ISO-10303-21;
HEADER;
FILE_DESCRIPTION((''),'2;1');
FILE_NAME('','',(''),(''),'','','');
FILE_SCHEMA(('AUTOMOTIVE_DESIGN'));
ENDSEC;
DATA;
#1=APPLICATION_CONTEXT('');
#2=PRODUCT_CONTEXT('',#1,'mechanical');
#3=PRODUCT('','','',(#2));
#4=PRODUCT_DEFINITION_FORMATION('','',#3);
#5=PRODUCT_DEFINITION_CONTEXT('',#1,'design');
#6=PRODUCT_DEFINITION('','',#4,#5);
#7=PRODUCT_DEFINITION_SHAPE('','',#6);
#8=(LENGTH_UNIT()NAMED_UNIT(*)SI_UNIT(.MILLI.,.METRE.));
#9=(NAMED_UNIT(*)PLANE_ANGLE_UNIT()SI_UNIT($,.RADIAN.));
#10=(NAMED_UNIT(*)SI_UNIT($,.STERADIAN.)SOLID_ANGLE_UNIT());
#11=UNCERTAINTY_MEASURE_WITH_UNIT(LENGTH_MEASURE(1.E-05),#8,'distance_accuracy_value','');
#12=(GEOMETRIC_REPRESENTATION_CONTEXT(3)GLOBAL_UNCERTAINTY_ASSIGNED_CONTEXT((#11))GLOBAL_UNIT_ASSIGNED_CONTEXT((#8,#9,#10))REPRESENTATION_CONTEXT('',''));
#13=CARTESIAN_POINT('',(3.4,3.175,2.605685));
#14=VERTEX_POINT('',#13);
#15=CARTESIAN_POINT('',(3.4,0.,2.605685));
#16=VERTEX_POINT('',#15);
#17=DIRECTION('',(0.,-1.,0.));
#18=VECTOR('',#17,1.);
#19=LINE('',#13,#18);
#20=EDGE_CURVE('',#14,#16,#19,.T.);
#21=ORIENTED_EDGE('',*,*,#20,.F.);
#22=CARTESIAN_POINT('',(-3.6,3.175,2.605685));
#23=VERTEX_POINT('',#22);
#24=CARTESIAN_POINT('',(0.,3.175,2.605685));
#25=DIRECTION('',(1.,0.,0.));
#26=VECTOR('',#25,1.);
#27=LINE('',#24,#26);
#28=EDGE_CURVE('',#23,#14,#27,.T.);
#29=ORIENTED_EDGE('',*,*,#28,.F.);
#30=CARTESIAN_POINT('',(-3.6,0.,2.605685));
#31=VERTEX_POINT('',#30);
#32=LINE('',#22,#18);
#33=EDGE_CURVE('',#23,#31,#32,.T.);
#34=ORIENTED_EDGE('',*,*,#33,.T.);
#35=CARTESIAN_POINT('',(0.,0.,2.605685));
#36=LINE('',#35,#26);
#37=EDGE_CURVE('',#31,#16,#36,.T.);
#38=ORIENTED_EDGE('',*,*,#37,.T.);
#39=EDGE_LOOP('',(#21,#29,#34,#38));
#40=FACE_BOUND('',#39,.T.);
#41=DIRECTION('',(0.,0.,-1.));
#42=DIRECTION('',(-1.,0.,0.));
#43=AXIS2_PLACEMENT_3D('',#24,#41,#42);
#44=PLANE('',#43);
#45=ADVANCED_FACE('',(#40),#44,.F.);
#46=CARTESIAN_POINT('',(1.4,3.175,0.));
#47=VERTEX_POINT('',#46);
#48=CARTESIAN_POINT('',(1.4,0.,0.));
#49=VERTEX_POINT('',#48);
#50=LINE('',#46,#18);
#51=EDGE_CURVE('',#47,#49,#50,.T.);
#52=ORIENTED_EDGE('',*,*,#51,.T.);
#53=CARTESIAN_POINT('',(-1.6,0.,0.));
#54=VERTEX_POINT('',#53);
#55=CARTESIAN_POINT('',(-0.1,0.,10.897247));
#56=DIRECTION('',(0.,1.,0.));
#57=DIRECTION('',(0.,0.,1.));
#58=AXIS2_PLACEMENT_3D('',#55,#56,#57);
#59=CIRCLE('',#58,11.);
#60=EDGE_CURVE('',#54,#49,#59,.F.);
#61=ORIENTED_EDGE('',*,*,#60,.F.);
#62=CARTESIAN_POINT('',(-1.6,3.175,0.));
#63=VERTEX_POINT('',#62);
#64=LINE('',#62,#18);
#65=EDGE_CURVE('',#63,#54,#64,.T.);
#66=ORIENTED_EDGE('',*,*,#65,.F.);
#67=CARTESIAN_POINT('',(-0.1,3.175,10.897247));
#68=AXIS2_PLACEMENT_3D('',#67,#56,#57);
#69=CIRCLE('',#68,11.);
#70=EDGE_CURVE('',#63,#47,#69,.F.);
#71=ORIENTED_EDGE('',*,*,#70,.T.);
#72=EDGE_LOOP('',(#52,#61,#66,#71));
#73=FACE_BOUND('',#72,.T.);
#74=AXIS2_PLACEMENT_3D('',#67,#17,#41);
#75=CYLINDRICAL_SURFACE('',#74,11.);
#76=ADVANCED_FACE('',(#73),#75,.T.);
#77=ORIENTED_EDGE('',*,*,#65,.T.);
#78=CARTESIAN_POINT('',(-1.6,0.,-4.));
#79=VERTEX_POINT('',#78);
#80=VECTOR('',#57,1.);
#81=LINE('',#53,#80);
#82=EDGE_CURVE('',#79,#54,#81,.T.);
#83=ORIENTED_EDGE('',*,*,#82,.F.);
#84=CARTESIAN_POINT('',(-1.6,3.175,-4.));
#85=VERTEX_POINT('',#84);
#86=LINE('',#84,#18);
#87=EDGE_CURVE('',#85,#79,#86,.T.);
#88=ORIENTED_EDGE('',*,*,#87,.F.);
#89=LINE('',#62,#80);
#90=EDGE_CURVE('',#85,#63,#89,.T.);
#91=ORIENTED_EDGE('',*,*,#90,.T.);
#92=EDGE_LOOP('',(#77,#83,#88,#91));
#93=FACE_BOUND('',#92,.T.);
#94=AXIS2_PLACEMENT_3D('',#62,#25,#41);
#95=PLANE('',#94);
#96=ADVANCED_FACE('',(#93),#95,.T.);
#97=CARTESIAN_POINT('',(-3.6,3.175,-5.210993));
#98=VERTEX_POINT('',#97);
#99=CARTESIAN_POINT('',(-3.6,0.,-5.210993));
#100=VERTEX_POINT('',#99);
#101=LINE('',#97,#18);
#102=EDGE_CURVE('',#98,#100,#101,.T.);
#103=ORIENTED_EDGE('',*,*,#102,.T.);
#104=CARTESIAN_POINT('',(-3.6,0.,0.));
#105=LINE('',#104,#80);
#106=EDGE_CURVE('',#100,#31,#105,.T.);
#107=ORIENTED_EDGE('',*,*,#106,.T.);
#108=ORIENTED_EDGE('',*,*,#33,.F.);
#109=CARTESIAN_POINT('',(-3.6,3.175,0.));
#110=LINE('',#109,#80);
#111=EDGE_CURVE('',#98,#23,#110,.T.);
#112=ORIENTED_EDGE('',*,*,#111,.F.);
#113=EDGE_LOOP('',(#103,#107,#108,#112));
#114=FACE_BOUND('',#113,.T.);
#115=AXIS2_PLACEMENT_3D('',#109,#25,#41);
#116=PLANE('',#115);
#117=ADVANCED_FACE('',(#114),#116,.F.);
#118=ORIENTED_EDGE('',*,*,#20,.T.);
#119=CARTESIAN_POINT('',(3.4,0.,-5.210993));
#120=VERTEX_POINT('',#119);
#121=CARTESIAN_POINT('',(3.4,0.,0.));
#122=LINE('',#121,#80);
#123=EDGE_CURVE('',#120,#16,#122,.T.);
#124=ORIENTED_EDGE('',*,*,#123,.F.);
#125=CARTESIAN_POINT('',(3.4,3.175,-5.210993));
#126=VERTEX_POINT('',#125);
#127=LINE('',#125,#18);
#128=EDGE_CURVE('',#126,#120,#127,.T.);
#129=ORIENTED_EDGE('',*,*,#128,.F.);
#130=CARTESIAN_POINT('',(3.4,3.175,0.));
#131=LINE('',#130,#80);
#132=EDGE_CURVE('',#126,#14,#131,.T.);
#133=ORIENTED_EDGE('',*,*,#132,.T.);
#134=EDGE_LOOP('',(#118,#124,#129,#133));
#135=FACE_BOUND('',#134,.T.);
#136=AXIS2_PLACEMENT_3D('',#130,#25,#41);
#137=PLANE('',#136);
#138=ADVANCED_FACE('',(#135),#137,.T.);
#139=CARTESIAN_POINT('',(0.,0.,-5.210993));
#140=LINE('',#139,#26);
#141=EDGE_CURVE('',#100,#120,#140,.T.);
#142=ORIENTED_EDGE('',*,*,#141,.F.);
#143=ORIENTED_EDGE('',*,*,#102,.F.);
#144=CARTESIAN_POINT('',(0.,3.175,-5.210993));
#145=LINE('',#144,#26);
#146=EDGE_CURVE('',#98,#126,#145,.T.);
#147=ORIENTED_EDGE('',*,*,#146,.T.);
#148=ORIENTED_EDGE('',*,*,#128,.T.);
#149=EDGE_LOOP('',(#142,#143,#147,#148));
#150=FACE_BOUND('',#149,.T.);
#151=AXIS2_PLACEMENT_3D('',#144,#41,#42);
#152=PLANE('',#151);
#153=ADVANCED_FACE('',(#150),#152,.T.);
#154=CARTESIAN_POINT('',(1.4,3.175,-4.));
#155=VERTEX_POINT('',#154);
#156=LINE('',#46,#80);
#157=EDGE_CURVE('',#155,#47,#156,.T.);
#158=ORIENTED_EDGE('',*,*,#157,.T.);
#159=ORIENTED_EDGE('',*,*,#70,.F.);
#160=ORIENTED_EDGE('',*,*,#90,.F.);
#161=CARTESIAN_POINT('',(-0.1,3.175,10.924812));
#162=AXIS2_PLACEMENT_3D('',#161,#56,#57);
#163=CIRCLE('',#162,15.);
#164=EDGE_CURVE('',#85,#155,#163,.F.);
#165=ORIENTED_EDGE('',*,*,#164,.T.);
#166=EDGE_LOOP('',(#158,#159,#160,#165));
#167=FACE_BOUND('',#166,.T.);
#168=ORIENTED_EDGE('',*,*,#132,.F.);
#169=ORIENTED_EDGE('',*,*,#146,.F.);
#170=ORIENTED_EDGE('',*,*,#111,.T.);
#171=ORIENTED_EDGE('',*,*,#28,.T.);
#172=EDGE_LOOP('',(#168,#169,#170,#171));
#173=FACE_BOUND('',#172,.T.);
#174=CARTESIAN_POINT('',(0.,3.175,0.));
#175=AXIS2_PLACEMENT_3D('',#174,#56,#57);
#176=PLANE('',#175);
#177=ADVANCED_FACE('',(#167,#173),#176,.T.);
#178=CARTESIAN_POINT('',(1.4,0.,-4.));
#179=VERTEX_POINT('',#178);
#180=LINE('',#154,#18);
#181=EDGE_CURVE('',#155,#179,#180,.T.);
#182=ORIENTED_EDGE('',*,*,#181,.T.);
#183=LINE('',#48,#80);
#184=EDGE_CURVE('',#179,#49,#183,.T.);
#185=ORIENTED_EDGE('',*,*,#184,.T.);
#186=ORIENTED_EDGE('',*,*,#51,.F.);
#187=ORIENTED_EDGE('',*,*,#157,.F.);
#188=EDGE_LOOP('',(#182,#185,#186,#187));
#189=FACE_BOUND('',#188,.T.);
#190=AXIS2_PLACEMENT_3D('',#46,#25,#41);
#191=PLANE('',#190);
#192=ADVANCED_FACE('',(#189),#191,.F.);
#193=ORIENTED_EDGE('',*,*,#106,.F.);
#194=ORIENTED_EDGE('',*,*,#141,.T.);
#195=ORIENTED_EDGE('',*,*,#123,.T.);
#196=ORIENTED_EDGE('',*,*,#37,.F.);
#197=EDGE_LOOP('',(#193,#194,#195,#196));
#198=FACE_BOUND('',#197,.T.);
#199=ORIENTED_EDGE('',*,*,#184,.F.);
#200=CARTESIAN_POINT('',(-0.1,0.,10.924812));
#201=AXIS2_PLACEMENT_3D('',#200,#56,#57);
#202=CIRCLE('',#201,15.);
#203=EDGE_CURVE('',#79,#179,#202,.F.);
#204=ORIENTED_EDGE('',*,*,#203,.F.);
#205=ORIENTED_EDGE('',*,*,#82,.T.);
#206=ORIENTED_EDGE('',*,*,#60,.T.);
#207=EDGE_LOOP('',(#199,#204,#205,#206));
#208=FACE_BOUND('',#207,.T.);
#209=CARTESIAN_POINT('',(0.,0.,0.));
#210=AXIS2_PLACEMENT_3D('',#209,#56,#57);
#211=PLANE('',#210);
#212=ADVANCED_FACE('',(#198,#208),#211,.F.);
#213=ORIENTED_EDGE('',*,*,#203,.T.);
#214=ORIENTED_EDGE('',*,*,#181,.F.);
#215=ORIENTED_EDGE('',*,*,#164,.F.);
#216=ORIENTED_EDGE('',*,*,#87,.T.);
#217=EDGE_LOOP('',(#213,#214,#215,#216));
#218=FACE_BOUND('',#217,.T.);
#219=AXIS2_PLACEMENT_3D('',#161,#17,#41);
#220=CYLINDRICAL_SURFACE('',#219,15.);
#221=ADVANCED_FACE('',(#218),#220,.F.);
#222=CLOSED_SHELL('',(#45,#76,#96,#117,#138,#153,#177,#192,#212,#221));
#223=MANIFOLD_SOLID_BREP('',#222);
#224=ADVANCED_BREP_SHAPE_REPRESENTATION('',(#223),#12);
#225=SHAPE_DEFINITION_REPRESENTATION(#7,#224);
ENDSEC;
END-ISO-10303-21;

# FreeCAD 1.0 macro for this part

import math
import FreeCAD as App
import Part
import Sketcher


def add_polygon(sketch, points):
    """Adds a closed chain of lines whose ends are joined by coincident constraints."""
    first, n = sketch.GeometryCount, len(points)
    for a, b in zip(points, points[1:] + points[:1]):
        sketch.addGeometry(Part.LineSegment(App.Vector(*a, 0), App.Vector(*b, 0)), False)
    for i in range(n):
        sketch.addConstraint(Sketcher.Constraint("Coincident", first + i, 2, first + (i + 1) % n, 1))

doc = App.newDocument("Part")
body = doc.addObject("PartDesign::Body", "Body")

# Sketch on XZ plane
sketch1 = doc.addObject("Sketcher::SketchObject", "Sketch")
body.addObject(sketch1)
sketch1.AttachmentSupport = (doc.XZ_Plane, [""])
sketch1.MapMode = "FlatFace"
add_polygon(sketch1, [(-3.6, -5.2), (-3.6, 2.6), (3.4, 2.6), (3.4, -5.2)])  # lines 0-3
sketch1.addGeometry(Part.ArcOfCircle(Part.Circle(App.Vector(-0.1, 10.9, 0), App.Vector(0, 0, 1), 11), math.radians(-97.84), math.radians(-82.16)), False)  # 4
sketch1.addGeometry(Part.LineSegment(App.Vector(-1.6, 0, 0), App.Vector(-1.6, -4, 0)), False)  # 5
sketch1.addGeometry(Part.ArcOfCircle(Part.Circle(App.Vector(-0.1, 10.9, 0), App.Vector(0, 0, 1), 15), math.radians(-95.74), math.radians(-84.26)), False)  # 6
sketch1.addGeometry(Part.LineSegment(App.Vector(1.4, -4, 0), App.Vector(1.4, 0, 0)), False)  # 7
sketch1.addConstraint(Sketcher.Constraint("Coincident", 4, 1, 5, 1))
sketch1.addConstraint(Sketcher.Constraint("Coincident", 5, 2, 6, 1))
sketch1.addConstraint(Sketcher.Constraint("Coincident", 6, 2, 7, 1))
sketch1.addConstraint(Sketcher.Constraint("Coincident", 7, 2, 4, 2))
sketch1.addConstraint(Sketcher.Constraint("Vertical", 0))
sketch1.addConstraint(Sketcher.Constraint("Horizontal", 1))
sketch1.addConstraint(Sketcher.Constraint("Vertical", 2))
sketch1.addConstraint(Sketcher.Constraint("Horizontal", 3))
sketch1.addConstraint(Sketcher.Constraint("Vertical", 5))
sketch1.addConstraint(Sketcher.Constraint("Vertical", 7))
sketch1.addConstraint(Sketcher.Constraint("PointOnObject", 4, 1, -1))
sketch1.addConstraint(Sketcher.Constraint("PointOnObject", 7, 2, -1))
sketch1.addConstraint(Sketcher.Constraint("Horizontal", 5, 2, 6, 2))
sketch1.addConstraint(Sketcher.Constraint("Radius", 4, 11.0))
sketch1.addConstraint(Sketcher.Constraint("Radius", 6, 15.0))
sketch1.addConstraint(Sketcher.Constraint("DistanceX", 1, 1, 1, 2, 7.0))
sketch1.addConstraint(Sketcher.Constraint("DistanceY", 5, 2, 5, 1, 4.0))
sketch1.addConstraint(Sketcher.Constraint("DistanceX", 0, 2, 4, 1, 2.0))
sketch1.addConstraint(Sketcher.Constraint("DistanceX", 6, 2, 2, 2, 2.0))
sketch1.addConstraint(Sketcher.Constraint("DistanceX", 4, 3, -1, 1, 0.1))
sketch1.addConstraint(Sketcher.Constraint("DistanceY", 0, 1, 0, 2, 7.816679))
sketch1.addConstraint(Sketcher.Constraint("DistanceY", 0, 2, 4, 3, 8.291562))
pad1 = doc.addObject("PartDesign::Pad", "Pad")
body.addObject(pad1)
pad1.Profile = sketch1
pad1.Length = 3.175
pad1.Reversed = True

doc.recompute()
